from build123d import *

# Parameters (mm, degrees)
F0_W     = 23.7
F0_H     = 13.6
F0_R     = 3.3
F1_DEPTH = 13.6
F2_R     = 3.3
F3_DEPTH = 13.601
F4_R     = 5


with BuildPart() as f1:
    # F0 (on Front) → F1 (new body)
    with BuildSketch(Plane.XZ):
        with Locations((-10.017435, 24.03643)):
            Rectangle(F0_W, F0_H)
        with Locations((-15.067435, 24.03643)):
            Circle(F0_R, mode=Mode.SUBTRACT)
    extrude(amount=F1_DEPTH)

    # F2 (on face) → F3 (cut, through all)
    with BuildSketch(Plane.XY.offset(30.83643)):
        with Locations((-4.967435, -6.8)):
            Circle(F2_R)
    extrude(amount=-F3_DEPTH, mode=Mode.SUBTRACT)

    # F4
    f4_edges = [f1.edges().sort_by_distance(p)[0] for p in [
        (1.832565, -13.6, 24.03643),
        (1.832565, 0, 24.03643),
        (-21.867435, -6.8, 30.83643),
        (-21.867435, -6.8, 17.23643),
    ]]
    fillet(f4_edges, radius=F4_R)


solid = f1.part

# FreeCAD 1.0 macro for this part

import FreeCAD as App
import Part
import Sketcher
Q = App.Units.Quantity


def edges_at(feature, points):
    """Names of the edges that pass closest to the given points."""
    edges = feature.Shape.Edges
    near = lambda p: min(range(len(edges)), key=lambda i: edges[i].distToShape(Part.Vertex(*p))[0])
    return sorted({f"Edge{near(p) + 1}" for p in points})


def add_polygon(sketch, points):
    """Adds a closed chain of lines whose ends are joined by coincident constraints."""
    first, n = sketch.GeometryCount, len(points)
    for a, b in zip(points, points[1:] + points[:1]):
        sketch.addGeometry(Part.LineSegment(App.Vector(*a, 0), App.Vector(*b, 0)), False)
    for i in range(n):
        sketch.addConstraint(Sketcher.Constraint("Coincident", first + i, 2, first + (i + 1) % n, 1))

doc = App.newDocument("Part")
body = doc.addObject("PartDesign::Body", "Body")

# Sketch on XZ plane
sketch1 = body.newObject("Sketcher::SketchObject", "Sketch")
sketch1.AttachmentSupport = (doc.getObject("XZ_Plane"), [""])
sketch1.MapMode = "FlatFace"
add_polygon(sketch1, [(-21.9, 30.8), (-21.9, 17.2), (1.8, 17.2), (1.8, 30.8)])  # lines 0-3
sketch1.addGeometry(Part.Circle(App.Vector(-15.1, 24, 0), App.Vector(0, 0, 1), 3.3), False)  # 4
sketch1.addConstraint([
    Sketcher.Constraint("Vertical", 0),
    Sketcher.Constraint("Horizontal", 1),
    Sketcher.Constraint("Vertical", 2),
    Sketcher.Constraint("Horizontal", 3),
    Sketcher.Constraint("Diameter", 4, Q("6.6 mm")),
    Sketcher.Constraint("DistanceX", 1, 1, 1, 2, Q("23.7 mm")),
    Sketcher.Constraint("DistanceY", 0, 2, 0, 1, Q("13.6 mm")),
    Sketcher.Constraint("DistanceX", 0, 2, 4, 3, Q("6.8 mm")),
    Sketcher.Constraint("DistanceY", 0, 2, 4, 3, Q("6.8 mm")),
    Sketcher.Constraint("DistanceY", -1, 1, 4, 3, Q("24.03643 mm")),
    Sketcher.Constraint("DistanceX", 4, 3, -1, 1, Q("15.067435 mm")),
])
pad1 = body.newObject("PartDesign::Pad", "Pad")
pad1.Profile = sketch1
pad1.Length = 13.6

# Sketch on XY plane
sketch2 = body.newObject("Sketcher::SketchObject", "Sketch001")
sketch2.AttachmentSupport = (doc.getObject("XY_Plane"), [""])
sketch2.MapMode = "FlatFace"
sketch2.AttachmentOffset = App.Placement(App.Vector(0, 0, 30.83643), App.Rotation())
sketch2.addGeometry(Part.Circle(App.Vector(-5, -6.8, 0), App.Vector(0, 0, 1), 3.3), False)
sketch2.addConstraint([
    Sketcher.Constraint("Diameter", 0, Q("6.6 mm")),
    Sketcher.Constraint("DistanceY", 0, 3, -1, 1, Q("6.8 mm")),
    Sketcher.Constraint("DistanceX", 0, 3, -1, 1, Q("4.967435 mm")),
])
pocket1 = body.newObject("PartDesign::Pocket", "Pocket")
pocket1.Profile = sketch2
pocket1.Type = "ThroughAll"
doc.recompute()

fillet = body.newObject("PartDesign::Fillet", "Fillet")
fillet.Base = (pocket1, edges_at(pocket1, [
    (1.833, -13.6, 24.036),
    (1.833, 0, 24.036),
    (-21.867, -6.8, 30.836),
    (-21.867, -6.8, 17.236),
]))
fillet.Radius = 5

doc.recompute()
